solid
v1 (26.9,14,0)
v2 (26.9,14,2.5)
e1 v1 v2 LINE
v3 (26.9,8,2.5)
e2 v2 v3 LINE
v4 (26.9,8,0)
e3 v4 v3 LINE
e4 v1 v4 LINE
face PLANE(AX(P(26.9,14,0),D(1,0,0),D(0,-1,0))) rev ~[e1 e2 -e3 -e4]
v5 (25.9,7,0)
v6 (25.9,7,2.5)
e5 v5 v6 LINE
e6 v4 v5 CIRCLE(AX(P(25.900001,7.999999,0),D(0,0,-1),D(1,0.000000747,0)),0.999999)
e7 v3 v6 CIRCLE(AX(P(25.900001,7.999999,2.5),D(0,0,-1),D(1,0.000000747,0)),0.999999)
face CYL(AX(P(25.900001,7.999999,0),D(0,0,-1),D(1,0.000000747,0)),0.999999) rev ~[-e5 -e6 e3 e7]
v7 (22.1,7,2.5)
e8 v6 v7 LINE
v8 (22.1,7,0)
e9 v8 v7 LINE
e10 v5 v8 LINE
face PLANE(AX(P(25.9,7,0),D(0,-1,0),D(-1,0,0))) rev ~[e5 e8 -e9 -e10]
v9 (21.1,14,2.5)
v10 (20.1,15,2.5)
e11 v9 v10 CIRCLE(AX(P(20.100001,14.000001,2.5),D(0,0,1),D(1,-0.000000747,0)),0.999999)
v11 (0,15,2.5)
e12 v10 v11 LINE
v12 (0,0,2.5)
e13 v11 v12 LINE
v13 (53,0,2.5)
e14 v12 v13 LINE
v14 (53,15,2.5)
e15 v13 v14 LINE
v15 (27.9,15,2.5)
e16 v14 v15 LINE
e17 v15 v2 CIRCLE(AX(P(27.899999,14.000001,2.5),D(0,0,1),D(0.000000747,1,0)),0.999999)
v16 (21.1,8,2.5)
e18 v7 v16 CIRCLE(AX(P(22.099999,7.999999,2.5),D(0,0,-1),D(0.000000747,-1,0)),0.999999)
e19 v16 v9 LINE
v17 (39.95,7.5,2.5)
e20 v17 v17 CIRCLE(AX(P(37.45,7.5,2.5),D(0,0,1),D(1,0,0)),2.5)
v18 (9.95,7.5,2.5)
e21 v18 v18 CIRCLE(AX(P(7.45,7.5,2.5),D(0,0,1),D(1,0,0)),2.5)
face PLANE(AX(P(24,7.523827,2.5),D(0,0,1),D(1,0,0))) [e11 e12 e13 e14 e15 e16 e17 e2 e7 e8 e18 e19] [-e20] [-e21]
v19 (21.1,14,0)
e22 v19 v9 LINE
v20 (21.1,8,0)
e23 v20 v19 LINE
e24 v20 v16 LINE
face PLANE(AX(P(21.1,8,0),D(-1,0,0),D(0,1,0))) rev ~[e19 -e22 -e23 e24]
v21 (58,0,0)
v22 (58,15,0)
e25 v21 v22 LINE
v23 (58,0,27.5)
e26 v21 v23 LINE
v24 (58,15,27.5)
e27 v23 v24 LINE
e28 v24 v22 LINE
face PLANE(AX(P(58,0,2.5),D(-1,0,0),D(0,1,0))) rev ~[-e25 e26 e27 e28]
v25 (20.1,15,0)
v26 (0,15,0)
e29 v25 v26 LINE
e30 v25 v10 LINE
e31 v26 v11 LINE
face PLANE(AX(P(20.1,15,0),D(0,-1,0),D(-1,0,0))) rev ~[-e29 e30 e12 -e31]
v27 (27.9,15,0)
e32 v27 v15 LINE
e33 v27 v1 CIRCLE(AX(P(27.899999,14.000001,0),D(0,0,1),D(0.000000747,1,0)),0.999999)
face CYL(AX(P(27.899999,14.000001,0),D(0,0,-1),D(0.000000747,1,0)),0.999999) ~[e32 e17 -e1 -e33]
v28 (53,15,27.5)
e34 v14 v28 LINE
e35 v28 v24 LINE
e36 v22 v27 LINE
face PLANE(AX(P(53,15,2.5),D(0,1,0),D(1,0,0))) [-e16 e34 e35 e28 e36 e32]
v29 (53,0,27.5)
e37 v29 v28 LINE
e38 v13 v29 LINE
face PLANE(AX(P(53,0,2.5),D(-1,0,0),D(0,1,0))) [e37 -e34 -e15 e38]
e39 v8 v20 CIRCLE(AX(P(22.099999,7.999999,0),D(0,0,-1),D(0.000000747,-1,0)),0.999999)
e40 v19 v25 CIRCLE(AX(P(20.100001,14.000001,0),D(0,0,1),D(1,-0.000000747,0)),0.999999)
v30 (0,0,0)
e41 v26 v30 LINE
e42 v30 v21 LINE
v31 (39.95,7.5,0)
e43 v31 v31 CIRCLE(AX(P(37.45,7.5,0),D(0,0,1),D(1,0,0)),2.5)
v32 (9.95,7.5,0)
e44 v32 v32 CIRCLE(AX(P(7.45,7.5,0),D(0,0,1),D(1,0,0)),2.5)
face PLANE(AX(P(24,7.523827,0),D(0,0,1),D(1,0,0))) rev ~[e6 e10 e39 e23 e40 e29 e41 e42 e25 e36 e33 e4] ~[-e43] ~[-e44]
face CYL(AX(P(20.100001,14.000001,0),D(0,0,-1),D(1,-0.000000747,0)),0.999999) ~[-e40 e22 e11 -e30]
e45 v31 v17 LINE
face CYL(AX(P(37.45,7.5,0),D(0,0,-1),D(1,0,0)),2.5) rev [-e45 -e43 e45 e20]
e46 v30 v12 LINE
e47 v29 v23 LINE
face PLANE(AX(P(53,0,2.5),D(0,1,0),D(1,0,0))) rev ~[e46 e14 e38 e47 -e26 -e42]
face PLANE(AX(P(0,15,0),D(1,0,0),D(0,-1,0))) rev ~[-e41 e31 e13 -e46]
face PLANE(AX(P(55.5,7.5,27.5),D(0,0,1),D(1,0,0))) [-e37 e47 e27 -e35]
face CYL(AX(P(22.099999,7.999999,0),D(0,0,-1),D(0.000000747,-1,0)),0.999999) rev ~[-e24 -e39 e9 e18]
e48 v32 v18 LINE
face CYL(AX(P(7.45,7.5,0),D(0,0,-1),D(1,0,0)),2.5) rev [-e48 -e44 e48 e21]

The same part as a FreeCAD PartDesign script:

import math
import FreeCAD as App
import Part
import Sketcher
from FreeCAD import Vector

doc = App.newDocument("Part")
body = doc.addObject("PartDesign::Body", "Body")

# Sketch on XY plane
sketch1 = body.newObject("Sketcher::SketchObject", "Sketch")
sketch1.AttachmentSupport = (doc.getObject("XY_Plane"), [""])
sketch1.MapMode = "FlatFace"
sketch1.addGeometry([
    Part.LineSegment(Vector(0, 15, 0), Vector(0, 0, 0)),  # 0
    Part.LineSegment(Vector(0, 0, 0), Vector(58, 0, 0)),  # 1
    Part.LineSegment(Vector(58, 0, 0), Vector(58, 15, 0)),  # 2
    Part.LineSegment(Vector(58, 15, 0), Vector(27.9, 15, 0)),  # 3
    Part.ArcOfCircle(Part.Circle(Vector(27.9, 14, 0), Vector(0, 0, 1), 1), math.radians(90), math.radians(180)),  # 4
    Part.LineSegment(Vector(26.9, 14, 0), Vector(26.9, 8, 0)),  # 5
    Part.ArcOfCircle(Part.Circle(Vector(25.9, 8, 0), Vector(0, 0, 1), 1), math.radians(-90), math.radians(0)),  # 6
    Part.LineSegment(Vector(25.9, 7, 0), Vector(22.1, 7, 0)),  # 7
    Part.ArcOfCircle(Part.Circle(Vector(22.1, 8, 0), Vector(0, 0, 1), 1), math.radians(180), math.radians(270)),  # 8
    Part.LineSegment(Vector(21.1, 8, 0), Vector(21.1, 14, 0)),  # 9
    Part.ArcOfCircle(Part.Circle(Vector(20.1, 14, 0), Vector(0, 0, 1), 1), math.radians(0), math.radians(90)),  # 10
    Part.LineSegment(Vector(20.1, 15, 0), Vector(0, 15, 0)),  # 11
    Part.Circle(Vector(7.5, 7.5, 0), Vector(0, 0, 1), 2.5),  # 12
    Part.Circle(Vector(37.5, 7.5, 0), Vector(0, 0, 1), 2.5),  # 13
], False)
sketch1.addConstraint([
    Sketcher.Constraint("Coincident", 0, 2, 1, 1),
    Sketcher.Constraint("Coincident", 1, 2, 2, 1),
    Sketcher.Constraint("Coincident", 2, 2, 3, 1),
    Sketcher.Constraint("Tangent", 3, 2, 4, 1),
    Sketcher.Constraint("Tangent", 4, 2, 5, 1),
    Sketcher.Constraint("Tangent", 5, 2, 6, 2),
    Sketcher.Constraint("Tangent", 6, 1, 7, 1),
    Sketcher.Constraint("Tangent", 7, 2, 8, 2),
    Sketcher.Constraint("Tangent", 8, 1, 9, 1),
    Sketcher.Constraint("Tangent", 9, 2, 10, 1),
    Sketcher.Constraint("Tangent", 10, 2, 11, 1),
    Sketcher.Constraint("Coincident", 11, 2, 0, 1),
    Sketcher.Constraint("Vertical", 0),
    Sketcher.Constraint("Horizontal", 1),
    Sketcher.Constraint("Vertical", 2),
    Sketcher.Constraint("Horizontal", 3),
    Sketcher.Constraint("Vertical", 5),
    Sketcher.Constraint("Horizontal", 7),
    Sketcher.Constraint("Vertical", 9),
    Sketcher.Constraint("Horizontal", 11),
    Sketcher.Constraint("Coincident", 0, 2, -1, 1),
    Sketcher.Constraint("Equal", 4, 6),
    Sketcher.Constraint("Equal", 6, 8),
    Sketcher.Constraint("Equal", 8, 10),
    Sketcher.Constraint("Equal", 12, 13),
    Sketcher.Constraint("Horizontal", 4, 3, 10, 3),
    Sketcher.Constraint("Horizontal", 12, 3, 13, 3),
    Sketcher.Constraint("Diameter", 12, 5.0),
    Sketcher.Constraint("Radius", 4, 0.999999),
    Sketcher.Constraint("DistanceX", 1, 1, 1, 2, 58.0),
    Sketcher.Constraint("DistanceY", 0, 2, 0, 1, 15.0),
    Sketcher.Constraint("DistanceY", 5, 2, 5, 1, 6.0),
    Sketcher.Constraint("DistanceX", 3, 2, 3, 1, 30.1),
    Sketcher.Constraint("DistanceX", 7, 2, 7, 1, 3.8),
    Sketcher.Constraint("DistanceX", 12, 3, 13, 3, 30.0),
    Sketcher.Constraint("DistanceY", -1, 1, 12, 3, 7.5),
    Sketcher.Constraint("DistanceX", -1, 1, 12, 3, 7.45),
])
pad1 = body.newObject("PartDesign::Pad", "Pad")
pad1.Profile = sketch1
pad1.Length = 2.5

# Sketch on XY plane
sketch2 = body.newObject("Sketcher::SketchObject", "Sketch001")
sketch2.AttachmentSupport = (doc.getObject("XY_Plane"), [""])
sketch2.MapMode = "FlatFace"
sketch2.AttachmentOffset = App.Placement(Vector(0, 0, 2.5), App.Rotation())
sketch2.addGeometry([
    Part.LineSegment(Vector(53, 15, 0), Vector(53, 0, 0)),
    Part.LineSegment(Vector(53, 0, 0), Vector(58, 0, 0)),
    Part.LineSegment(Vector(58, 0, 0), Vector(58, 15, 0)),
    Part.LineSegment(Vector(58, 15, 0), Vector(53, 15, 0)),
], False)
sketch2.addConstraint([
    Sketcher.Constraint("Coincident", 0, 2, 1, 1),
    Sketcher.Constraint("Coincident", 1, 2, 2, 1),
    Sketcher.Constraint("Coincident", 2, 2, 3, 1),
    Sketcher.Constraint("Coincident", 3, 2, 0, 1),
    Sketcher.Constraint("Vertical", 0),
    Sketcher.Constraint("Horizontal", 1),
    Sketcher.Constraint("Vertical", 2),
    Sketcher.Constraint("Horizontal", 3),
    Sketcher.Constraint("PointOnObject", 0, 2, -1),
    Sketcher.Constraint("DistanceX", 1, 1, 1, 2, 5.0),
    Sketcher.Constraint("DistanceY", 0, 2, 0, 1, 15.0),
    Sketcher.Constraint("DistanceX", -1, 1, 0, 2, 53.0),
])
pad2 = body.newObject("PartDesign::Pad", "Pad001")
pad2.Profile = sketch2
pad2.Length = 25

doc.recompute()
